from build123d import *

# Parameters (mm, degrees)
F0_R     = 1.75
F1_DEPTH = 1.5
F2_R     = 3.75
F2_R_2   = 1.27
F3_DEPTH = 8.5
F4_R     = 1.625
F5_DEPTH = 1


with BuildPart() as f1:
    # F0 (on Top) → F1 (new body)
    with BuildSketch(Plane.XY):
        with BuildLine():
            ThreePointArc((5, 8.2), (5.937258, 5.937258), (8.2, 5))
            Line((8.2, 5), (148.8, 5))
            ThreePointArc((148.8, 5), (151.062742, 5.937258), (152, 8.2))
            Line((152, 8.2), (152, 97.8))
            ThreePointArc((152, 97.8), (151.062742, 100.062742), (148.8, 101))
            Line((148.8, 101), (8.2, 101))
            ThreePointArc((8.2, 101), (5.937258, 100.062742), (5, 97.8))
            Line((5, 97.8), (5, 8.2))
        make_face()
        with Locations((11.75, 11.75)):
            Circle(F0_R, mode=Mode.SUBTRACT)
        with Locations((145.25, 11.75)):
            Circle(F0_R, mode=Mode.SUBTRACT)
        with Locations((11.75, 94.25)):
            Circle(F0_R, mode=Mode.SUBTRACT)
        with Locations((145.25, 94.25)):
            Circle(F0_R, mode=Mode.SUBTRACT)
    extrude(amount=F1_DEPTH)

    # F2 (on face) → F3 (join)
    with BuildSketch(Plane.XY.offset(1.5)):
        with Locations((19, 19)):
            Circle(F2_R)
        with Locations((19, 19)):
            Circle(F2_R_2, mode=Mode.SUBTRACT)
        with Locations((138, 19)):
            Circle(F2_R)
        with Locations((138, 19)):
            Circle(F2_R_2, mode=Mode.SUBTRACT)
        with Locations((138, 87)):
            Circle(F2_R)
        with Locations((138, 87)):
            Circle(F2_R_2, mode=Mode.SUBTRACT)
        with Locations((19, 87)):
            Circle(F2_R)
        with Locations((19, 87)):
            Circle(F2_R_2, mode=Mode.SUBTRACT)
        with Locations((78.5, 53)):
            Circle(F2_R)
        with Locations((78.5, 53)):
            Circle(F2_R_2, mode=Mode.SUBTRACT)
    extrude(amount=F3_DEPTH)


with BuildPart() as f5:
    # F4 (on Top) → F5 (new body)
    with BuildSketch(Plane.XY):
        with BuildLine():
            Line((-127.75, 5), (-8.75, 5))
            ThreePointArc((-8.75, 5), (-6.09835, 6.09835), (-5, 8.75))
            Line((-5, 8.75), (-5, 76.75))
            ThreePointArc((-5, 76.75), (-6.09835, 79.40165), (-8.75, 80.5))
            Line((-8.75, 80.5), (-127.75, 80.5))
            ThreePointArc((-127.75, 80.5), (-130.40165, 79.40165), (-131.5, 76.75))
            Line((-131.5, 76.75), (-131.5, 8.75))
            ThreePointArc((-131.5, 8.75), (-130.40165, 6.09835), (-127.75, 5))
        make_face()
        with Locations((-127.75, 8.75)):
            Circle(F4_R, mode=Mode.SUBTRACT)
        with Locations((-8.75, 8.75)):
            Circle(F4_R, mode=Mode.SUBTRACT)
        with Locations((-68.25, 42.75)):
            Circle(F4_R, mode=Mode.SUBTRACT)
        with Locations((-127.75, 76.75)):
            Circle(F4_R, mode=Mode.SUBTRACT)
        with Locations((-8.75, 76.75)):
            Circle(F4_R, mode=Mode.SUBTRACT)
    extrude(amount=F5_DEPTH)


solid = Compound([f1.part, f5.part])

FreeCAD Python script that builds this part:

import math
import FreeCAD as App
import Part
import Sketcher

V = App.Vector

doc = App.newDocument("Part")
body = doc.addObject("PartDesign::Body", "Body")

# Sketch on XY plane
sketch1 = body.newObject("Sketcher::SketchObject", "Sketch")
sketch1.AttachmentSupport = (doc.getObject("XY_Plane"), [""])
sketch1.MapMode = "FlatFace"
sketch1.addGeometry([
    Part.ArcOfCircle(Part.Circle(V(8.199999, 8.199999, 0), V(0, 0, 1), 3.199999), math.radians(179.999982), math.radians(270.000018)),  # 0
    Part.LineSegment(V(8.2, 5, 0), V(148.8, 5, 0)),  # 1
    Part.ArcOfCircle(Part.Circle(V(148.800001, 8.199999, 0), V(0, 0, 1), 3.199999), math.radians(-90.000018), math.radians(0.000018)),  # 2
    Part.LineSegment(V(152, 8.2, 0), V(152, 97.8, 0)),  # 3
    Part.ArcOfCircle(Part.Circle(V(148.800001, 97.800001, 0), V(0, 0, 1), 3.199999), math.radians(-0.000018), math.radians(90.000018)),  # 4
    Part.LineSegment(V(148.8, 101, 0), V(8.2, 101, 0)),  # 5
    Part.ArcOfCircle(Part.Circle(V(8.199999, 97.800001, 0), V(0, 0, 1), 3.199999), math.radians(89.999982), math.radians(180.000018)),  # 6
    Part.LineSegment(V(5, 97.8, 0), V(5, 8.2, 0)),  # 7
    Part.Circle(V(11.75, 11.75, 0), V(0, 0, 1), 1.75),  # 8
    Part.Circle(V(145.25, 11.75, 0), V(0, 0, 1), 1.75),  # 9
    Part.Circle(V(11.75, 94.25, 0), V(0, 0, 1), 1.75),  # 10
    Part.Circle(V(145.25, 94.25, 0), V(0, 0, 1), 1.75),  # 11
], False)
sketch1.addConstraint([
    Sketcher.Constraint("Tangent", 0, 2, 1, 1),
    Sketcher.Constraint("Tangent", 1, 2, 2, 1),
    Sketcher.Constraint("Tangent", 2, 2, 3, 1),
    Sketcher.Constraint("Tangent", 3, 2, 4, 1),
    Sketcher.Constraint("Tangent", 4, 2, 5, 1),
    Sketcher.Constraint("Tangent", 5, 2, 6, 1),
    Sketcher.Constraint("Tangent", 6, 2, 7, 1),
    Sketcher.Constraint("Tangent", 7, 2, 0, 1),
    Sketcher.Constraint("Horizontal", 1),
    Sketcher.Constraint("Vertical", 3),
    Sketcher.Constraint("Horizontal", 5),
    Sketcher.Constraint("Vertical", 7),
    Sketcher.Constraint("Equal", 0, 2),
    Sketcher.Constraint("Equal", 2, 4),
    Sketcher.Constraint("Equal", 4, 6),
    Sketcher.Constraint("Equal", 8, 9),
    Sketcher.Constraint("Equal", 9, 10),
    Sketcher.Constraint("Equal", 10, 11),
    Sketcher.Constraint("Horizontal", 8, 3, 9, 3),
    Sketcher.Constraint("Horizontal", 10, 3, 11, 3),
    Sketcher.Constraint("Vertical", 8, 3, 10, 3),
    Sketcher.Constraint("Vertical", 9, 3, 11, 3),
    Sketcher.Constraint("Diameter", 8, 3.5),
    Sketcher.Constraint("Radius", 0, 3.199999),
    Sketcher.Constraint("DistanceX", 1, 1, 1, 2, 140.6),
    Sketcher.Constraint("DistanceY", 3, 1, 3, 2, 89.6),
    Sketcher.Constraint("DistanceY", -1, 1, 0, 2, 5.0),
    Sketcher.Constraint("DistanceX", -1, 1, 2, 2, 152.0),
    Sketcher.Constraint("DistanceX", 8, 3, 9, 3, 133.5),
    Sketcher.Constraint("DistanceY", 8, 3, 10, 3, 82.5),
    Sketcher.Constraint("DistanceX", -1, 1, 8, 3, 11.75),
    Sketcher.Constraint("DistanceY", -1, 1, 8, 3, 11.75),
])
pad1 = body.newObject("PartDesign::Pad", "Pad")
pad1.Profile = sketch1
pad1.Length = 1.5

# Sketch on XY plane
sketch2 = body.newObject("Sketcher::SketchObject", "Sketch001")
sketch2.AttachmentSupport = (doc.getObject("XY_Plane"), [""])
sketch2.MapMode = "FlatFace"
sketch2.AttachmentOffset = App.Placement(V(0, 0, 1.5), App.Rotation())
sketch2.addGeometry([
    Part.Circle(V(19, 19, 0), V(0, 0, 1), 3.75),  # 0
    Part.Circle(V(19, 19, 0), V(0, 0, 1), 1.27),  # 1
    Part.Circle(V(138, 19, 0), V(0, 0, 1), 3.75),  # 2
    Part.Circle(V(138, 19, 0), V(0, 0, 1), 1.27),  # 3
    Part.Circle(V(138, 87, 0), V(0, 0, 1), 3.75),  # 4
    Part.Circle(V(138, 87, 0), V(0, 0, 1), 1.27),  # 5
    Part.Circle(V(19, 87, 0), V(0, 0, 1), 3.75),  # 6
    Part.Circle(V(19, 87, 0), V(0, 0, 1), 1.27),  # 7
    Part.Circle(V(78.5, 53, 0), V(0, 0, 1), 3.75),  # 8
    Part.Circle(V(78.5, 53, 0), V(0, 0, 1), 1.27),  # 9
], False)
sketch2.addConstraint([
    Sketcher.Constraint("Coincident", 1, 3, 0, 3),
    Sketcher.Constraint("Coincident", 3, 3, 2, 3),
    Sketcher.Constraint("Coincident", 5, 3, 4, 3),
    Sketcher.Constraint("Coincident", 7, 3, 6, 3),
    Sketcher.Constraint("Coincident", 9, 3, 8, 3),
    Sketcher.Constraint("Equal", 0, 2),
    Sketcher.Constraint("Equal", 1, 3),
    Sketcher.Constraint("Equal", 2, 4),
    Sketcher.Constraint("Equal", 3, 5),
    Sketcher.Constraint("Equal", 4, 6),
    Sketcher.Constraint("Equal", 5, 7),
    Sketcher.Constraint("Equal", 6, 8),
    Sketcher.Constraint("Equal", 7, 9),
    Sketcher.Constraint("Horizontal", 1, 3, 2, 3),
    Sketcher.Constraint("Horizontal", 5, 3, 6, 3),
    Sketcher.Constraint("Vertical", 3, 3, 4, 3),
    Sketcher.Constraint("Vertical", 1, 3, 6, 3),
    Sketcher.Constraint("Diameter", 0, 7.5),
    Sketcher.Constraint("Diameter", 1, 2.54),
    Sketcher.Constraint("DistanceX", -1, 1, 0, 3, 19.0),
    Sketcher.Constraint("DistanceY", -1, 1, 0, 3, 19.0),
    Sketcher.Constraint("DistanceX", -1, 1, 2, 3, 138.0),
    Sketcher.Constraint("DistanceY", -1, 1, 4, 3, 87.0),
    Sketcher.Constraint("DistanceY", -1, 1, 8, 3, 53.0),
    Sketcher.Constraint("DistanceX", -1, 1, 8, 3, 78.5),
])
pad2 = body.newObject("PartDesign::Pad", "Pad001")
pad2.Profile = sketch2
pad2.Length = 8.5
body2 = doc.addObject("PartDesign::Body", "Body001")

# Sketch on XY plane
sketch3 = body2.newObject("Sketcher::SketchObject", "Sketch002")
sketch3.AttachmentSupport = (doc.getObject("XY_Plane001"), [""])
sketch3.MapMode = "FlatFace"
sketch3.addGeometry([
    Part.LineSegment(V(-127.75, 5, 0), V(-8.75, 5, 0)),  # 0
    Part.ArcOfCircle(Part.Circle(V(-8.750001, 8.750001, 0), V(0, 0, 1), 3.750001), math.radians(-89.999978), math.radians(-0.000022)),  # 1
    Part.LineSegment(V(-5, 8.75, 0), V(-5, 76.75, 0)),  # 2
    Part.ArcOfCircle(Part.Circle(V(-8.750001, 76.749999, 0), V(0, 0, 1), 3.750001), math.radians(0.000022), math.radians(89.999978)),  # 3
    Part.LineSegment(V(-8.75, 80.5, 0), V(-127.75, 80.5, 0)),  # 4
    Part.ArcOfCircle(Part.Circle(V(-127.749999, 76.749999, 0), V(0, 0, 1), 3.750001), math.radians(90.000022), math.radians(179.999978)),  # 5
    Part.LineSegment(V(-131.5, 76.75, 0), V(-131.5, 8.75, 0)),  # 6
    Part.ArcOfCircle(Part.Circle(V(-127.749999, 8.750001, 0), V(0, 0, 1), 3.750001), math.radians(-179.999978), math.radians(-90.000022)),  # 7
    Part.Circle(V(-127.75, 8.75, 0), V(0, 0, 1), 1.625),  # 8
    Part.Circle(V(-8.75, 8.75, 0), V(0, 0, 1), 1.625),  # 9
    Part.Circle(V(-127.75, 76.75, 0), V(0, 0, 1), 1.625),  # 10
    Part.Circle(V(-68.25, 42.75, 0), V(0, 0, 1), 1.625),  # 11
    Part.Circle(V(-8.75, 76.75, 0), V(0, 0, 1), 1.625),  # 12
], False)
sketch3.addConstraint([
    Sketcher.Constraint("Tangent", 0, 2, 1, 1),
    Sketcher.Constraint("Tangent", 1, 2, 2, 1),
    Sketcher.Constraint("Tangent", 2, 2, 3, 1),
    Sketcher.Constraint("Tangent", 3, 2, 4, 1),
    Sketcher.Constraint("Tangent", 4, 2, 5, 1),
    Sketcher.Constraint("Tangent", 5, 2, 6, 1),
    Sketcher.Constraint("Tangent", 6, 2, 7, 1),
    Sketcher.Constraint("Tangent", 7, 2, 0, 1),
    Sketcher.Constraint("Horizontal", 0),
    Sketcher.Constraint("Vertical", 2),
    Sketcher.Constraint("Horizontal", 4),
    Sketcher.Constraint("Vertical", 6),
    Sketcher.Constraint("Coincident", 8, 3, 7, 3),
    Sketcher.Constraint("Coincident", 9, 3, 1, 3),
    Sketcher.Constraint("Coincident", 10, 3, 5, 3),
    Sketcher.Constraint("Coincident", 12, 3, 3, 3),
    Sketcher.Constraint("Equal", 1, 3),
    Sketcher.Constraint("Equal", 3, 5),
    Sketcher.Constraint("Equal", 5, 7),
    Sketcher.Constraint("Equal", 8, 9),
    Sketcher.Constraint("Equal", 9, 10),
    Sketcher.Constraint("Equal", 10, 11),
    Sketcher.Constraint("Equal", 11, 12),
    Sketcher.Constraint("Diameter", 8, 3.25),
    Sketcher.Constraint("DistanceX", 0, 1, 0, 2, 119.0),
    Sketcher.Constraint("DistanceY", 2, 1, 2, 2, 68.0),
    Sketcher.Constraint("Radius", 1, 3.750001),
    Sketcher.Constraint("DistanceY", -1, 1, 0, 2, 5.0),
    Sketcher.Constraint("DistanceX", 1, 2, -1, 1, 5.0),
    Sketcher.Constraint("DistanceY", 1, 3, 11, 3, 33.999999),
    Sketcher.Constraint("DistanceX", 11, 3, 1, 3, 59.499999),
])
pad3 = body2.newObject("PartDesign::Pad", "Pad002")
pad3.Profile = sketch3
pad3.Length = 1

doc.recompute()
